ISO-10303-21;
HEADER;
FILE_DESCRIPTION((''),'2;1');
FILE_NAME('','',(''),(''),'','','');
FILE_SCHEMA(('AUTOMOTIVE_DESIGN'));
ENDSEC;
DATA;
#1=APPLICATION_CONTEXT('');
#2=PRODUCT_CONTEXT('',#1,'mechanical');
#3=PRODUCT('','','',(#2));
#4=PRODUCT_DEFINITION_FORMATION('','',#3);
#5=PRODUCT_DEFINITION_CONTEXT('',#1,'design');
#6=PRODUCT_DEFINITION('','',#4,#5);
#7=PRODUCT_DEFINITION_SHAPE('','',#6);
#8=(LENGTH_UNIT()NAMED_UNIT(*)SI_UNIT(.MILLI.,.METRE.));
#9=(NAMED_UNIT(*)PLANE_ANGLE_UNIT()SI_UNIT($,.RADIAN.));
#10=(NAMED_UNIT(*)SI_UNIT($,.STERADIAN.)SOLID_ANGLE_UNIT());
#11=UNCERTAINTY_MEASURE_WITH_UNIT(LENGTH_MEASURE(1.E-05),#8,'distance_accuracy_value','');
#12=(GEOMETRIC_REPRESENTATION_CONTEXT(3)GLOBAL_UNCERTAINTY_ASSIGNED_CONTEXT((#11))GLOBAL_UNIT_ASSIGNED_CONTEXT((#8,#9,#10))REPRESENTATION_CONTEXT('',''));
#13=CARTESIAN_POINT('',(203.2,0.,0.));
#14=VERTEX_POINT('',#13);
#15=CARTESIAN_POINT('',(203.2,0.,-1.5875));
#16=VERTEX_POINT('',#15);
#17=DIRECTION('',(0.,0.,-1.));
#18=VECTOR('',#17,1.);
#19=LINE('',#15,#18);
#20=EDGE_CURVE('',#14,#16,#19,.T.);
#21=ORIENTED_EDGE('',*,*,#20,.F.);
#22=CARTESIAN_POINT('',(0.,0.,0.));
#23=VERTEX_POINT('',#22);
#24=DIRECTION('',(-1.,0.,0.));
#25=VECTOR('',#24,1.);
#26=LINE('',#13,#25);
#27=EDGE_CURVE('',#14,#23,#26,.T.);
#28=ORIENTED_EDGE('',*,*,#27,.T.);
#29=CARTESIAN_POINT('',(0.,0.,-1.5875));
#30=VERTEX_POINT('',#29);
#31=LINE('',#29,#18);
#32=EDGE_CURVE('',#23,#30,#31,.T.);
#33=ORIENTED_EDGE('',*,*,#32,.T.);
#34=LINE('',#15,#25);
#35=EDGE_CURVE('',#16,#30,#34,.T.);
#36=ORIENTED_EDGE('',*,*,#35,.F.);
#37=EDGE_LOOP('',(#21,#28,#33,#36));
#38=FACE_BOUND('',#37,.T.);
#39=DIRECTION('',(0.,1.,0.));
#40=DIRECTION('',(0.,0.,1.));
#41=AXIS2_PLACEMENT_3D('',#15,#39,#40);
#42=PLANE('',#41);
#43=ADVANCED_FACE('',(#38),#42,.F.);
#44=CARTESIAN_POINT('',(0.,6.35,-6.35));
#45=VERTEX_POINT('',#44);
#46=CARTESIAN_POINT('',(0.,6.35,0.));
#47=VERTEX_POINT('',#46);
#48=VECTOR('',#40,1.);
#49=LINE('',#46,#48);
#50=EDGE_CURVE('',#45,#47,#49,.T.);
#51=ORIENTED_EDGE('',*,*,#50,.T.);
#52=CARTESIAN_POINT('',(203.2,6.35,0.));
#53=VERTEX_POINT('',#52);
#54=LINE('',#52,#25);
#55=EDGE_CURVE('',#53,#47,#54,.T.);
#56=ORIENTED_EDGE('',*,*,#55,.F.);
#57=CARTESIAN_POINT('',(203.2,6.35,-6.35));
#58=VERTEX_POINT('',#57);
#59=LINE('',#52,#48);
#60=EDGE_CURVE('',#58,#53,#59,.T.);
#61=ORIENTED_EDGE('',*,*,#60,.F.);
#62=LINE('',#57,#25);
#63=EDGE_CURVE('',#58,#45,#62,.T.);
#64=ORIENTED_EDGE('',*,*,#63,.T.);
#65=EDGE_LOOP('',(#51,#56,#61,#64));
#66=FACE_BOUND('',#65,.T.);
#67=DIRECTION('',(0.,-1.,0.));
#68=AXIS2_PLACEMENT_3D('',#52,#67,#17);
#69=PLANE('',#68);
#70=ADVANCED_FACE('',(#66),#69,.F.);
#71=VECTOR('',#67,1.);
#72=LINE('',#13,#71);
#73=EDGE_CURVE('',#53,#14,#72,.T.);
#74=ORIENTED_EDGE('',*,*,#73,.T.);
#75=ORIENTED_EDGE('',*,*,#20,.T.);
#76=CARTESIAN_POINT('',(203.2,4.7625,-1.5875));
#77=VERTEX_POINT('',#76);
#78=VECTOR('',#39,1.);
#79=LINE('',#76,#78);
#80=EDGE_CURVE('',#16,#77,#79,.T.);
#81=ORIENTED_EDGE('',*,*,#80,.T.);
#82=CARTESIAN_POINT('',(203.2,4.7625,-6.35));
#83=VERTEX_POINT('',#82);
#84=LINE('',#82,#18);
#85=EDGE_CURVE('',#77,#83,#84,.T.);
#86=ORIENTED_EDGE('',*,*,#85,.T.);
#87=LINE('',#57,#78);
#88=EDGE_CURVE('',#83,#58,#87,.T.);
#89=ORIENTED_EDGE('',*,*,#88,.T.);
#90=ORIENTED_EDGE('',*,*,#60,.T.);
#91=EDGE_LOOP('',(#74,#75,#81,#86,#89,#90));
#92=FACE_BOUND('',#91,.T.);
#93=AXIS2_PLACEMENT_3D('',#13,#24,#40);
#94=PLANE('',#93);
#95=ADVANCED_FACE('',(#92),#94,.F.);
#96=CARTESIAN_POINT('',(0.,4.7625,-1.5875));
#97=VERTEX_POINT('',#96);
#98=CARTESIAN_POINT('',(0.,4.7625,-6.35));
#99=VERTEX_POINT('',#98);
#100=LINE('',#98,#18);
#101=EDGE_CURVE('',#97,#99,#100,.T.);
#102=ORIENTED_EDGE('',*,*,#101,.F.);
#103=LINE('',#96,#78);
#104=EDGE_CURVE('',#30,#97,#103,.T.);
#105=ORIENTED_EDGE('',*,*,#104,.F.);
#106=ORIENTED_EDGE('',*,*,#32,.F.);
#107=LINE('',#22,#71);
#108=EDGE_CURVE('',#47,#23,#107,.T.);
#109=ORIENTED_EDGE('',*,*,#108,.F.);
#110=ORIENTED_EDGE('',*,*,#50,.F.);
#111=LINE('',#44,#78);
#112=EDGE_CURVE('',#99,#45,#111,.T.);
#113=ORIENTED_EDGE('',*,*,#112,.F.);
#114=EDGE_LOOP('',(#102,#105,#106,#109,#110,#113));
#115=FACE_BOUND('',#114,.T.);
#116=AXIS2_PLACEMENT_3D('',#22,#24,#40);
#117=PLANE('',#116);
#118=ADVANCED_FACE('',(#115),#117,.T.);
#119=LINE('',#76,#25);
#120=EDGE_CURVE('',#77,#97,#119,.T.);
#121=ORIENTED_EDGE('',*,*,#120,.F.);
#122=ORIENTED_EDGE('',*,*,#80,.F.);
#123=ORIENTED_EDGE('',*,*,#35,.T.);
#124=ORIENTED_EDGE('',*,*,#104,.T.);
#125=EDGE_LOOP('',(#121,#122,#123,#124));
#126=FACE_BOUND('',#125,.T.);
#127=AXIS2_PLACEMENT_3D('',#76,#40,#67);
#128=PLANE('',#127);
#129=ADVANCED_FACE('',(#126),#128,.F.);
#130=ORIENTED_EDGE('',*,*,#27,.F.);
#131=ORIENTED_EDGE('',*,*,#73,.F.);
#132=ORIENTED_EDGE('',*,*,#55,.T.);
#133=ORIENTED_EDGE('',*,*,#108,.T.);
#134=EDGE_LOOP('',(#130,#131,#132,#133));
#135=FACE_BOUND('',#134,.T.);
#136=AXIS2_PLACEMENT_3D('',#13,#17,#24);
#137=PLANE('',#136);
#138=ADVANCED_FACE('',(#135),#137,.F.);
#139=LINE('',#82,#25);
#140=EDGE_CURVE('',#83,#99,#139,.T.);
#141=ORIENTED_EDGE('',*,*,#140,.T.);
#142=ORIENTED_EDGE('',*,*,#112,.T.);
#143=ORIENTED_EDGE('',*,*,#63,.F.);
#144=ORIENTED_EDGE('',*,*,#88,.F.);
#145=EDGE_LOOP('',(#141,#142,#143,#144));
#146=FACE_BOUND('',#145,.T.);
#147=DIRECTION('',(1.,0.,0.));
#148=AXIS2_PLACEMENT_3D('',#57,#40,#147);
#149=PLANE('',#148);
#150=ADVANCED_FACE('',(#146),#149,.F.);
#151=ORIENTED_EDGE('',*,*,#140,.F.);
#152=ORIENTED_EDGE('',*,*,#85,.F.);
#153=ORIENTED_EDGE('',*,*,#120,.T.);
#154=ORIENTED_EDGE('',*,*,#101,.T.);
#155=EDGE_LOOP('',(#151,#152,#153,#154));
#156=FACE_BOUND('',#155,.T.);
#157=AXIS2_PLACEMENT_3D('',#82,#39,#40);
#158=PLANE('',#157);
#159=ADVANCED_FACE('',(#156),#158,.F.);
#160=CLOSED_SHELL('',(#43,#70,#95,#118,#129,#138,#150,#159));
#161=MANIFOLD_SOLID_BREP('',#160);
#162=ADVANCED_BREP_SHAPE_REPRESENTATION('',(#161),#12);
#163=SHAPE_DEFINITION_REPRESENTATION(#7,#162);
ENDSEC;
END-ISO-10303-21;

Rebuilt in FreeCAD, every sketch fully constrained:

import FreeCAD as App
import Part
import Sketcher
from FreeCAD import Vector
Q = App.Units.Quantity


def add_polygon(sketch, points):
    """Adds a closed chain of lines whose ends are joined by coincident constraints."""
    first, n = sketch.GeometryCount, len(points)
    for a, b in zip(points, points[1:] + points[:1]):
        sketch.addGeometry(Part.LineSegment(App.Vector(*a, 0), App.Vector(*b, 0)), False)
    for i in range(n):
        sketch.addConstraint(Sketcher.Constraint("Coincident", first + i, 2, first + (i + 1) % n, 1))

doc = App.newDocument("Part")
body = doc.addObject("PartDesign::Body", "Body")

# Sketch on YZ plane
sketch1 = body.newObject("Sketcher::SketchObject", "Sketch")
sketch1.AttachmentSupport = (doc.getObject("YZ_Plane"), [""])
sketch1.MapMode = "FlatFace"
add_polygon(sketch1, [(6.35, 0), (0, 0), (0, -1.5875), (4.7625, -1.5875), (4.7625, -6.35), (6.35, -6.35)])  # lines 0-5
sketch1.addConstraint([
    Sketcher.Constraint("Horizontal", 0),
    Sketcher.Constraint("Vertical", 1),
    Sketcher.Constraint("Horizontal", 2),
    Sketcher.Constraint("Vertical", 3),
    Sketcher.Constraint("Horizontal", 4),
    Sketcher.Constraint("Vertical", 5),
    Sketcher.Constraint("Coincident", 0, 2, -1, 1),
    Sketcher.Constraint("Equal", 4, 1),
    Sketcher.Constraint("Equal", 2, 3),
    Sketcher.Constraint("DistanceX", 0, 2, 0, 1, Q("0.25 in")),
    Sketcher.Constraint("DistanceX", 2, 1, 2, 2, Q("0.1875 in")),
])
pad1 = body.newObject("PartDesign::Pad", "Pad")
pad1.Profile = sketch1
pad1.Length = Q("8 in")

doc.recompute()
